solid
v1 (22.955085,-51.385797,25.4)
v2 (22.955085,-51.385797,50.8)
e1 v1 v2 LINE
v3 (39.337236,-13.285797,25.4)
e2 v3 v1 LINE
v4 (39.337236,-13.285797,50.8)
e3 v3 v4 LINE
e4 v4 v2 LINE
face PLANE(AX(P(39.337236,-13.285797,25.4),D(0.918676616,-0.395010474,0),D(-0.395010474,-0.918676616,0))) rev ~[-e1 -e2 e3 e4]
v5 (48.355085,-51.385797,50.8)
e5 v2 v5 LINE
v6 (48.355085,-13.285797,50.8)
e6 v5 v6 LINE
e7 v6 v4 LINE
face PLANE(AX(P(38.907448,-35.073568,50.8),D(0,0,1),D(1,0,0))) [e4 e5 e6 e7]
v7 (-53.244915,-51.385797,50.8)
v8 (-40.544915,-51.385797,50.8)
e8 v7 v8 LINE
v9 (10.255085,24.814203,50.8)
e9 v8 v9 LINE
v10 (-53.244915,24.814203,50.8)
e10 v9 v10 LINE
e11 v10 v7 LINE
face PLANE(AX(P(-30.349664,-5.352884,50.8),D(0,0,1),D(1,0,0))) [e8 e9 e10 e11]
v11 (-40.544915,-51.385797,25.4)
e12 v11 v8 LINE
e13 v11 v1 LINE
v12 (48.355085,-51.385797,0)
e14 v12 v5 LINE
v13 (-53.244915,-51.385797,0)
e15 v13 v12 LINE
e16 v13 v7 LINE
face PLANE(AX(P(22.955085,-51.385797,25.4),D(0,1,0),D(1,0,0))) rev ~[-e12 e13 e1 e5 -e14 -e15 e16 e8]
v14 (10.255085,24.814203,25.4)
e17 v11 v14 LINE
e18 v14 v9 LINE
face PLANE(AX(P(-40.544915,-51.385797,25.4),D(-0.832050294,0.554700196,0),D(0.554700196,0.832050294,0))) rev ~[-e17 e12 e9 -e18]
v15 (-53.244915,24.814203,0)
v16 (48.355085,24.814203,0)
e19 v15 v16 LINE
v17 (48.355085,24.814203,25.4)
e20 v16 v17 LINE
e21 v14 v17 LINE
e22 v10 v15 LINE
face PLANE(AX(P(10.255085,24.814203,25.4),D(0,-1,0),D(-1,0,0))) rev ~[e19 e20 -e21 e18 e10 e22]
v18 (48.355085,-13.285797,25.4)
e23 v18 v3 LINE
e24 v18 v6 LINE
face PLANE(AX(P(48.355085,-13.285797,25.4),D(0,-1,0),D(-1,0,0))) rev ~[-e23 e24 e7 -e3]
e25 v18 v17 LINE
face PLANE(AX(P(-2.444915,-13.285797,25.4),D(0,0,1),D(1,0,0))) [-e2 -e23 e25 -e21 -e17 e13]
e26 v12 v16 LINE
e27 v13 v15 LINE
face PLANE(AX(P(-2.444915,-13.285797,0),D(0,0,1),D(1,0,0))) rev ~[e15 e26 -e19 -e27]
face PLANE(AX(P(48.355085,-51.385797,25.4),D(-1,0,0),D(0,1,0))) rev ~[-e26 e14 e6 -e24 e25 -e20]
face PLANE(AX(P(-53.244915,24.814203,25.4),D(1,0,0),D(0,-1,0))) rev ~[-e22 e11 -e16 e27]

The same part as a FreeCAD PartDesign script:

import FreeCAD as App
import Part
import Sketcher
Q = App.Units.Quantity


def add_polygon(sketch, points):
    """Adds a closed chain of lines whose ends are joined by coincident constraints."""
    first, n = sketch.GeometryCount, len(points)
    for a, b in zip(points, points[1:] + points[:1]):
        sketch.addGeometry(Part.LineSegment(App.Vector(*a, 0), App.Vector(*b, 0)), False)
    for i in range(n):
        sketch.addConstraint(Sketcher.Constraint("Coincident", first + i, 2, first + (i + 1) % n, 1))

doc = App.newDocument("Part")
params = doc.addObject("Spreadsheet::Sheet", "Params")
for row, (alias, value) in enumerate([
    ("sketch1_width", "4 in"),
    ("sketch1_height", "3 in"),
    ("pad1_length", "1 in"),
    ("sketch2_height", "3 in"),
    ("sketch2_width", "0.5 in"),
    ("sketch2_width2", "2.5 in"),
    ("pad2_length", "1 in"),
    ("sketch3_width", "1 in"),
    ("sketch3_height", "1.5 in"),
    ("pad3_length", "1 in"),
], start=1):
    params.set(f"A{row}", alias)
    params.set(f"B{row}", "=" + value)
    params.setAlias(f"B{row}", alias)

body = doc.addObject("PartDesign::Body", "Body")

sketch1 = body.newObject("Sketcher::SketchObject", "Sketch")
sketch1.AttachmentSupport = (doc.getObject("XY_Plane"), [""])
sketch1.MapMode = "FlatFace"
add_polygon(sketch1, [(-53.244915, 24.814203), (-53.244915, -51.385797), (48.355085, -51.385797), (48.355085, 24.814203)])
sketch1.addConstraint([
    Sketcher.Constraint("Vertical", 0),
    Sketcher.Constraint("Horizontal", 1),
    Sketcher.Constraint("Vertical", 2),
    Sketcher.Constraint("Horizontal", 3),
    Sketcher.Constraint("DistanceX", 1, 1, 1, 2, Q("4 in")),
    Sketcher.Constraint("DistanceY", 0, 2, 0, 1, Q("3 in")),
    Sketcher.Constraint("DistanceX", 0, 2, -1, 1, Q("53.244915 mm")),
    Sketcher.Constraint("DistanceY", 0, 2, -1, 1, Q("51.385797 mm")),
])
sketch1.setExpression("Constraints[8]", "Params.sketch1_width")
sketch1.setExpression("Constraints[9]", "Params.sketch1_height")
pad1 = body.newObject("PartDesign::Pad", "Pad")
pad1.Profile = sketch1
pad1.setExpression("Length", "Params.pad1_length")

sketch2 = body.newObject("Sketcher::SketchObject", "Sketch001")
sketch2.AttachmentSupport = (doc.getObject("XY_Plane"), [""])
sketch2.MapMode = "FlatFace"
sketch2.AttachmentOffset = App.Placement(App.Vector(0, 0, 1 * 25.4), App.Rotation())
add_polygon(sketch2, [(-53.244915, 24.814203), (-53.244915, -51.385797), (-40.544915, -51.385797), (10.255085, 24.814203)])
sketch2.addConstraint([
    Sketcher.Constraint("Vertical", 0),
    Sketcher.Constraint("Horizontal", 1),
    Sketcher.Constraint("Horizontal", 3),
    Sketcher.Constraint("DistanceY", 0, 2, 0, 1, Q("3 in")),
    Sketcher.Constraint("DistanceX", 1, 1, 1, 2, Q("0.5 in")),
    Sketcher.Constraint("DistanceX", 3, 2, 3, 1, Q("2.5 in")),
    Sketcher.Constraint("DistanceX", 0, 2, -1, 1, Q("53.244915 mm")),
    Sketcher.Constraint("DistanceY", 0, 2, -1, 1, Q("51.385797 mm")),
])
sketch2.setExpression("Constraints[7]", "Params.sketch2_height")
sketch2.setExpression("Constraints[8]", "Params.sketch2_width")
sketch2.setExpression("Constraints[9]", "Params.sketch2_width2")
pad2 = body.newObject("PartDesign::Pad", "Pad001")
pad2.Profile = sketch2
pad2.setExpression("Length", "Params.pad2_length")

sketch3 = body.newObject("Sketcher::SketchObject", "Sketch002")
sketch3.AttachmentSupport = (doc.getObject("XY_Plane"), [""])
sketch3.MapMode = "FlatFace"
sketch3.AttachmentOffset = App.Placement(App.Vector(0, 0, 1 * 25.4), App.Rotation())
add_polygon(sketch3, [(22.955085, -51.385797), (48.355085, -51.385797), (48.355085, -13.285797), (39.337236, -13.285797)])
sketch3.addConstraint([
    Sketcher.Constraint("Horizontal", 0),
    Sketcher.Constraint("Vertical", 1),
    Sketcher.Constraint("Horizontal", 2),
    Sketcher.Constraint("DistanceX", 0, 1, 0, 2, Q("1 in")),
    Sketcher.Constraint("DistanceY", 1, 1, 1, 2, Q("1.5 in")),
    Sketcher.Constraint("Distance", 3, Q("41.4727 mm")),
    Sketcher.Constraint("DistanceX", -1, 1, 0, 2, Q("48.355085 mm")),
    Sketcher.Constraint("DistanceY", 0, 2, -1, 1, Q("51.385797 mm")),
])
sketch3.setExpression("Constraints[7]", "Params.sketch3_width")
sketch3.setExpression("Constraints[8]", "Params.sketch3_height")
pad3 = body.newObject("PartDesign::Pad", "Pad002")
pad3.Profile = sketch3
pad3.setExpression("Length", "Params.pad3_length")

doc.recompute()
